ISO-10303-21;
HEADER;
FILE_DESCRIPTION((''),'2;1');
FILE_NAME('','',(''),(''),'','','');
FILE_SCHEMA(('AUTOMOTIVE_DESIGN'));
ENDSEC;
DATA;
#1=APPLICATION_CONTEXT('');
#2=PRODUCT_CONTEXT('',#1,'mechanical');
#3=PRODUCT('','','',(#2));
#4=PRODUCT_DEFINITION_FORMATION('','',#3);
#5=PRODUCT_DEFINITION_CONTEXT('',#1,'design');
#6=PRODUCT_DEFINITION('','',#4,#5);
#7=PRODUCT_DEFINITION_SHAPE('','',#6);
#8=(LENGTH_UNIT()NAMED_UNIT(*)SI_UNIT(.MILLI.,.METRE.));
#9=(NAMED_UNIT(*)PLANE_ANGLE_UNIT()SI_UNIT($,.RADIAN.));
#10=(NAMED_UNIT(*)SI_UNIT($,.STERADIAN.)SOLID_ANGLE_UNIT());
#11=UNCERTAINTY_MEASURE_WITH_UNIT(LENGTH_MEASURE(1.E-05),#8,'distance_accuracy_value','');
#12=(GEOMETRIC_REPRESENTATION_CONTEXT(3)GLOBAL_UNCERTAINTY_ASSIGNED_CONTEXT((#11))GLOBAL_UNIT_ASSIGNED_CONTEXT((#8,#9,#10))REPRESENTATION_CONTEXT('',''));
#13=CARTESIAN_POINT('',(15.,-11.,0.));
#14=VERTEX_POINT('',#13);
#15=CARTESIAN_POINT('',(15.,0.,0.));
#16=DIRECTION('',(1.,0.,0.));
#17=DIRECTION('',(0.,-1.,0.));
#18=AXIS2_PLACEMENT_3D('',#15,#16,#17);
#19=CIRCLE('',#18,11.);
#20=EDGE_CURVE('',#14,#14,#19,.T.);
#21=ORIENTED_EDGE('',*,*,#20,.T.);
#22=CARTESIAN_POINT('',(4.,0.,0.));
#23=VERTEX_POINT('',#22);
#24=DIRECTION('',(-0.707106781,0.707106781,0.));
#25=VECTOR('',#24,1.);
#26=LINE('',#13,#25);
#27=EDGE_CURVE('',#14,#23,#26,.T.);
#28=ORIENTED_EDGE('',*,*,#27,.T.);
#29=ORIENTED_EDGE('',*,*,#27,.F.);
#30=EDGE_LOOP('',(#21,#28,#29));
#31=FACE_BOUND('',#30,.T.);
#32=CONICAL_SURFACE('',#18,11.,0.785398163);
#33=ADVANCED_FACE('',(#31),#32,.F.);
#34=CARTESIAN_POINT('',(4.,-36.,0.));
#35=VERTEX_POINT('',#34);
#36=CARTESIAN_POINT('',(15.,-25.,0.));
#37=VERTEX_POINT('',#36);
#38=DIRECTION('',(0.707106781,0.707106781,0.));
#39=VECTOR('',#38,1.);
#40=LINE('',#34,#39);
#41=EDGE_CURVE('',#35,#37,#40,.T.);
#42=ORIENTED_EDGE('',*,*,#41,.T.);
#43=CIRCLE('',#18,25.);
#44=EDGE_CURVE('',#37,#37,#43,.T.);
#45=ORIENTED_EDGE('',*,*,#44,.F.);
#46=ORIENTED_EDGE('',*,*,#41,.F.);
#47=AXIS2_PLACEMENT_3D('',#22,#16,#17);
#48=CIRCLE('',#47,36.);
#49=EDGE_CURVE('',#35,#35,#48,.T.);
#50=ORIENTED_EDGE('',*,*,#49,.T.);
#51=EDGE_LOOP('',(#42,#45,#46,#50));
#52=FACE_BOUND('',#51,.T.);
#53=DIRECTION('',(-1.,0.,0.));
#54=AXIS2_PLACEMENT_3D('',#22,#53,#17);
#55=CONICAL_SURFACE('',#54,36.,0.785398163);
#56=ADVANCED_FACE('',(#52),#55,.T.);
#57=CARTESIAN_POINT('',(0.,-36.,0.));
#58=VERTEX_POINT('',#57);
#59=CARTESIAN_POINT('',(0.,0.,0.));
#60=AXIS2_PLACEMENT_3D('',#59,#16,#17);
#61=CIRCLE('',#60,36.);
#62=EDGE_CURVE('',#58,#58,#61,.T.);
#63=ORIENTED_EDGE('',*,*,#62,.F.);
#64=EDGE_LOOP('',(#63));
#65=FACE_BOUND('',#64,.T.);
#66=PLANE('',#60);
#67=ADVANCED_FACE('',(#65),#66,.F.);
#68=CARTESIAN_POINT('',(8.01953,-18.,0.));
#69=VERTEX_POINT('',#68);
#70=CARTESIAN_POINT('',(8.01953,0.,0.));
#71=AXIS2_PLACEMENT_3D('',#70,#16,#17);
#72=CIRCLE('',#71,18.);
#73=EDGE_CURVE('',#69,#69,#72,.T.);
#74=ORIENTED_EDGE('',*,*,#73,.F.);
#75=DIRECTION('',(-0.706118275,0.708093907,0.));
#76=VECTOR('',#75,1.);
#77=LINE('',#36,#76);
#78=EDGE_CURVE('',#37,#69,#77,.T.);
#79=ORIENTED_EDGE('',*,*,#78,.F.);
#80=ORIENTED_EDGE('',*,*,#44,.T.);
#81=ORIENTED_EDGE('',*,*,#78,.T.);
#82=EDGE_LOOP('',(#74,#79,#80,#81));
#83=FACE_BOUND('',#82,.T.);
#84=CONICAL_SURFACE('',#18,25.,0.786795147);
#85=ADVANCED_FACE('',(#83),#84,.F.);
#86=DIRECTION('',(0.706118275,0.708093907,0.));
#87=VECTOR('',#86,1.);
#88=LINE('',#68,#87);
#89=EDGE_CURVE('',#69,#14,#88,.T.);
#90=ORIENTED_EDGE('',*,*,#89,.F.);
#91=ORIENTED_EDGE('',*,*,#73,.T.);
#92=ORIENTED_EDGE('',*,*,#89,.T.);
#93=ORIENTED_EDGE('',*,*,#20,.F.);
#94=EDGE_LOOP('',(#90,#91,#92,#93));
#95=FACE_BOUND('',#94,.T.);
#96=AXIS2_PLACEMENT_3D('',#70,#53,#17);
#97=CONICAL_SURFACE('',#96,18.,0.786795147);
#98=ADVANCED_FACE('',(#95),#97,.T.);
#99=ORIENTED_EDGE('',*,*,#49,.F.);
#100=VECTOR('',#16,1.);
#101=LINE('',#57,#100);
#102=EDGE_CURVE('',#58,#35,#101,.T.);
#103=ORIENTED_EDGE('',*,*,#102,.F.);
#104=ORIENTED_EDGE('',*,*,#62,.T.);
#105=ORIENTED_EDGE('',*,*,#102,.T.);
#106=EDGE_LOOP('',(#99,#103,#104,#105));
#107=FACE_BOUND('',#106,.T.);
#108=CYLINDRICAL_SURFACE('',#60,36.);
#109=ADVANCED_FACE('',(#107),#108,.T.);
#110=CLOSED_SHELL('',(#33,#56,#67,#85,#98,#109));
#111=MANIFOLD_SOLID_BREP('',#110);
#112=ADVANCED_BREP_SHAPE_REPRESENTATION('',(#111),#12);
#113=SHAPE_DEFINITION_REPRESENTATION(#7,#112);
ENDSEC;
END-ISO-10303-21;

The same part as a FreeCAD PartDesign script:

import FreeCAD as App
import Part
import Sketcher


def add_polygon(sketch, points):
    """Adds a closed chain of lines whose ends are joined by coincident constraints."""
    first, n = sketch.GeometryCount, len(points)
    for a, b in zip(points, points[1:] + points[:1]):
        sketch.addGeometry(Part.LineSegment(App.Vector(*a, 0), App.Vector(*b, 0)), False)
    for i in range(n):
        sketch.addConstraint(Sketcher.Constraint("Coincident", first + i, 2, first + (i + 1) % n, 1))

doc = App.newDocument("Part")
body = doc.addObject("PartDesign::Body", "Body")

# Sketch on XY plane
sketch1 = body.newObject("Sketcher::SketchObject", "Sketch")
sketch1.AttachmentSupport = (doc.getObject("XY_Plane"), [""])
sketch1.MapMode = "FlatFace"
add_polygon(sketch1, [(4, 0), (0, 0), (0, -36), (4, -36), (15, -25), (8.01953, -18), (15, -11)])  # lines 0-6
sketch1.addConstraint([
    Sketcher.Constraint("Horizontal", 0),
    Sketcher.Constraint("Vertical", 1),
    Sketcher.Constraint("Horizontal", 2),
    Sketcher.Constraint("Coincident", 0, 2, -1, 1),
    Sketcher.Constraint("Perpendicular", 3, 6),
    Sketcher.Constraint("Vertical", 3, 2, 5, 2),
    Sketcher.Constraint("Vertical", 2, 2, 6, 2),
    Sketcher.Constraint("Equal", 4, 5),
    Sketcher.Constraint("Equal", 3, 6),
    Sketcher.Constraint("DistanceX", 0, 2, 0, 1, 4.0),
    Sketcher.Constraint("DistanceY", 1, 2, 1, 1, 36.0),
    Sketcher.Constraint("DistanceX", -1, 1, 3, 2, 15.0),
    Sketcher.Constraint("DistanceX", -1, 1, 4, 2, 8.01953),
])
revolution = body.newObject("PartDesign::Revolution", "Revolution")
revolution.Profile = sketch1
revolution.ReferenceAxis = (sketch1, ["H_Axis"])
revolution.Angle = 360

doc.recompute()
